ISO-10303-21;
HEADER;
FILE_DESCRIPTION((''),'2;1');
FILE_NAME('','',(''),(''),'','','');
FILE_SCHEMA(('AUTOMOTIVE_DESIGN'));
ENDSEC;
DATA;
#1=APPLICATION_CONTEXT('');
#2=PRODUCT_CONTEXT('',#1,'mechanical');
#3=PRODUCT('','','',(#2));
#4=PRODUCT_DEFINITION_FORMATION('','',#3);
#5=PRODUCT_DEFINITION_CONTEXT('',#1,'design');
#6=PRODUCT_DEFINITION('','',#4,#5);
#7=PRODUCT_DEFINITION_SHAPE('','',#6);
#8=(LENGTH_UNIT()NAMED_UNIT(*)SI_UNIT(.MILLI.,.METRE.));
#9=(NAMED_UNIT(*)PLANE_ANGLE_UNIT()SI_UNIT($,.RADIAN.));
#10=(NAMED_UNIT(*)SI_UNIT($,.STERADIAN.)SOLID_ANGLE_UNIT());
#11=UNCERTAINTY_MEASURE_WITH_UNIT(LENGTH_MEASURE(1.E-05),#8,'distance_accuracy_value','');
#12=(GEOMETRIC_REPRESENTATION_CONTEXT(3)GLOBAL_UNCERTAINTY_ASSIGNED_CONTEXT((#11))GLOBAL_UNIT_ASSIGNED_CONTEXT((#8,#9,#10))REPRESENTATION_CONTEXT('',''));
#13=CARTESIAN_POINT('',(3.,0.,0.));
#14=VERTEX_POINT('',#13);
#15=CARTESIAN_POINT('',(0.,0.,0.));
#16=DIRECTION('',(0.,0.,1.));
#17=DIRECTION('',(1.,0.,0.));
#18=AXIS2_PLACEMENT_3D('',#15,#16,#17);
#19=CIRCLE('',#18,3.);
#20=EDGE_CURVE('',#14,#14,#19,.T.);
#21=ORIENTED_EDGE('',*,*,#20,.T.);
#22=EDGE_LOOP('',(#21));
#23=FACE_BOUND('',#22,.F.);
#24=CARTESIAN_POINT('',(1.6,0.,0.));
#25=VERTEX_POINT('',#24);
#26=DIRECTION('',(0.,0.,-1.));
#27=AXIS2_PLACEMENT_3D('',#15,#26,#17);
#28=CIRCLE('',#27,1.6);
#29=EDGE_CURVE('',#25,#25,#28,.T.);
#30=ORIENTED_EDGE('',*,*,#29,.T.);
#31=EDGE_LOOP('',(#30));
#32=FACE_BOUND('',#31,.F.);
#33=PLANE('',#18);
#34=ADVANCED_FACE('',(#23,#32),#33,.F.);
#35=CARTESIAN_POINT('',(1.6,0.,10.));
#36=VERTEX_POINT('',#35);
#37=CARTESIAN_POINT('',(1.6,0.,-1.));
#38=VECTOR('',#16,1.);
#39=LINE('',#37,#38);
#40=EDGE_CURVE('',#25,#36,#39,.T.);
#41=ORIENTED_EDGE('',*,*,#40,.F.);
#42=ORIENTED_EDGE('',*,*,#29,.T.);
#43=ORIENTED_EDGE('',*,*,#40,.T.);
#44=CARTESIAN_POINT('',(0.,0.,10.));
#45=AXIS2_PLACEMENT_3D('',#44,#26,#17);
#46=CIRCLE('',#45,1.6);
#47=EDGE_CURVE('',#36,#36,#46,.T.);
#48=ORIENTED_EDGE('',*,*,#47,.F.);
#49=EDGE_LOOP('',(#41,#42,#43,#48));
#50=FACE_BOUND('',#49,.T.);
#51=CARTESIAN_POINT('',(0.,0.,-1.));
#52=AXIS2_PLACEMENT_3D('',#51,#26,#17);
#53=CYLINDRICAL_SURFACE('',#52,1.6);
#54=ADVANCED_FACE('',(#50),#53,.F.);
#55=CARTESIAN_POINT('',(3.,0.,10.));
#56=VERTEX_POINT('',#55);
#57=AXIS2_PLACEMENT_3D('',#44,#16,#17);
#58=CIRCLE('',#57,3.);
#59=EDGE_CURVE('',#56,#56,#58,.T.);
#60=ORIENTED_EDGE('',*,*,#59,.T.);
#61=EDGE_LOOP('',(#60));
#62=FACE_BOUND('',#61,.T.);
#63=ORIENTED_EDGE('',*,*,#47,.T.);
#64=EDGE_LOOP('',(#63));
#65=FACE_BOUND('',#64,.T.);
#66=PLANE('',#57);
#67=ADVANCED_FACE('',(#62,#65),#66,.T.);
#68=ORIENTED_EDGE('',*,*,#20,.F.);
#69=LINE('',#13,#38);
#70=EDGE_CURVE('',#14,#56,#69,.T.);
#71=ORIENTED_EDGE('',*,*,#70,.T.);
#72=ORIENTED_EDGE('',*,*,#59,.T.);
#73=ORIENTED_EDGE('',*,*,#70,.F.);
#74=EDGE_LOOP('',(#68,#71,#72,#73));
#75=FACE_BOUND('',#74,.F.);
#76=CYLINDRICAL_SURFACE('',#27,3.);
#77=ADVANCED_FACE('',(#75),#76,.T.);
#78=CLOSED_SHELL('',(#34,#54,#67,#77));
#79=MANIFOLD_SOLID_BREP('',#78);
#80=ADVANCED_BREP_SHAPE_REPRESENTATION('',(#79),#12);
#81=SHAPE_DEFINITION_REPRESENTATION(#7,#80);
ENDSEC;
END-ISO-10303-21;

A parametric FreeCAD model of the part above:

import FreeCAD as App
import Part
import Sketcher

doc = App.newDocument("Part")
body = doc.addObject("PartDesign::Body", "Body")

# Sketch on XY plane
sketch1 = doc.addObject("Sketcher::SketchObject", "Sketch")
body.addObject(sketch1)
sketch1.AttachmentSupport = (doc.XY_Plane, [""])
sketch1.MapMode = "FlatFace"
sketch1.AttachmentOffset = App.Placement(App.Vector(0, 0, -1), App.Rotation())
sketch1.addGeometry(Part.Circle(App.Vector(0, 0, 0), App.Vector(0, 0, 1), 1.6), False)
sketch1.addConstraint(Sketcher.Constraint("Coincident", 0, 3, -1, 1))
sketch1.addConstraint(Sketcher.Constraint("Diameter", 0, 3.2))
pad1 = doc.addObject("PartDesign::Pad", "Pad")
body.addObject(pad1)
pad1.Profile = sketch1
pad1.Length = 12
body2 = doc.addObject("PartDesign::Body", "Body001")

# Sketch on XY plane
sketch2 = doc.addObject("Sketcher::SketchObject", "Sketch001")
body2.addObject(sketch2)
sketch2.AttachmentSupport = (doc.getObject("XY_Plane001"), [""])
sketch2.MapMode = "FlatFace"
sketch2.addGeometry(Part.Circle(App.Vector(0, 0, 0), App.Vector(0, 0, 1), 3), False)
sketch2.addConstraint(Sketcher.Constraint("Coincident", 0, 3, -1, 1))
sketch2.addConstraint(Sketcher.Constraint("Diameter", 0, 6.0))
pad2 = doc.addObject("PartDesign::Pad", "Pad001")
body2.addObject(pad2)
pad2.Profile = sketch2
pad2.Length = 10
doc.recompute()

boolean = doc.addObject("PartDesign::Boolean", "Boolean")
body2.addObject(boolean)
boolean.Type = "Cut"
boolean.addObjects([body])

doc.recompute()
